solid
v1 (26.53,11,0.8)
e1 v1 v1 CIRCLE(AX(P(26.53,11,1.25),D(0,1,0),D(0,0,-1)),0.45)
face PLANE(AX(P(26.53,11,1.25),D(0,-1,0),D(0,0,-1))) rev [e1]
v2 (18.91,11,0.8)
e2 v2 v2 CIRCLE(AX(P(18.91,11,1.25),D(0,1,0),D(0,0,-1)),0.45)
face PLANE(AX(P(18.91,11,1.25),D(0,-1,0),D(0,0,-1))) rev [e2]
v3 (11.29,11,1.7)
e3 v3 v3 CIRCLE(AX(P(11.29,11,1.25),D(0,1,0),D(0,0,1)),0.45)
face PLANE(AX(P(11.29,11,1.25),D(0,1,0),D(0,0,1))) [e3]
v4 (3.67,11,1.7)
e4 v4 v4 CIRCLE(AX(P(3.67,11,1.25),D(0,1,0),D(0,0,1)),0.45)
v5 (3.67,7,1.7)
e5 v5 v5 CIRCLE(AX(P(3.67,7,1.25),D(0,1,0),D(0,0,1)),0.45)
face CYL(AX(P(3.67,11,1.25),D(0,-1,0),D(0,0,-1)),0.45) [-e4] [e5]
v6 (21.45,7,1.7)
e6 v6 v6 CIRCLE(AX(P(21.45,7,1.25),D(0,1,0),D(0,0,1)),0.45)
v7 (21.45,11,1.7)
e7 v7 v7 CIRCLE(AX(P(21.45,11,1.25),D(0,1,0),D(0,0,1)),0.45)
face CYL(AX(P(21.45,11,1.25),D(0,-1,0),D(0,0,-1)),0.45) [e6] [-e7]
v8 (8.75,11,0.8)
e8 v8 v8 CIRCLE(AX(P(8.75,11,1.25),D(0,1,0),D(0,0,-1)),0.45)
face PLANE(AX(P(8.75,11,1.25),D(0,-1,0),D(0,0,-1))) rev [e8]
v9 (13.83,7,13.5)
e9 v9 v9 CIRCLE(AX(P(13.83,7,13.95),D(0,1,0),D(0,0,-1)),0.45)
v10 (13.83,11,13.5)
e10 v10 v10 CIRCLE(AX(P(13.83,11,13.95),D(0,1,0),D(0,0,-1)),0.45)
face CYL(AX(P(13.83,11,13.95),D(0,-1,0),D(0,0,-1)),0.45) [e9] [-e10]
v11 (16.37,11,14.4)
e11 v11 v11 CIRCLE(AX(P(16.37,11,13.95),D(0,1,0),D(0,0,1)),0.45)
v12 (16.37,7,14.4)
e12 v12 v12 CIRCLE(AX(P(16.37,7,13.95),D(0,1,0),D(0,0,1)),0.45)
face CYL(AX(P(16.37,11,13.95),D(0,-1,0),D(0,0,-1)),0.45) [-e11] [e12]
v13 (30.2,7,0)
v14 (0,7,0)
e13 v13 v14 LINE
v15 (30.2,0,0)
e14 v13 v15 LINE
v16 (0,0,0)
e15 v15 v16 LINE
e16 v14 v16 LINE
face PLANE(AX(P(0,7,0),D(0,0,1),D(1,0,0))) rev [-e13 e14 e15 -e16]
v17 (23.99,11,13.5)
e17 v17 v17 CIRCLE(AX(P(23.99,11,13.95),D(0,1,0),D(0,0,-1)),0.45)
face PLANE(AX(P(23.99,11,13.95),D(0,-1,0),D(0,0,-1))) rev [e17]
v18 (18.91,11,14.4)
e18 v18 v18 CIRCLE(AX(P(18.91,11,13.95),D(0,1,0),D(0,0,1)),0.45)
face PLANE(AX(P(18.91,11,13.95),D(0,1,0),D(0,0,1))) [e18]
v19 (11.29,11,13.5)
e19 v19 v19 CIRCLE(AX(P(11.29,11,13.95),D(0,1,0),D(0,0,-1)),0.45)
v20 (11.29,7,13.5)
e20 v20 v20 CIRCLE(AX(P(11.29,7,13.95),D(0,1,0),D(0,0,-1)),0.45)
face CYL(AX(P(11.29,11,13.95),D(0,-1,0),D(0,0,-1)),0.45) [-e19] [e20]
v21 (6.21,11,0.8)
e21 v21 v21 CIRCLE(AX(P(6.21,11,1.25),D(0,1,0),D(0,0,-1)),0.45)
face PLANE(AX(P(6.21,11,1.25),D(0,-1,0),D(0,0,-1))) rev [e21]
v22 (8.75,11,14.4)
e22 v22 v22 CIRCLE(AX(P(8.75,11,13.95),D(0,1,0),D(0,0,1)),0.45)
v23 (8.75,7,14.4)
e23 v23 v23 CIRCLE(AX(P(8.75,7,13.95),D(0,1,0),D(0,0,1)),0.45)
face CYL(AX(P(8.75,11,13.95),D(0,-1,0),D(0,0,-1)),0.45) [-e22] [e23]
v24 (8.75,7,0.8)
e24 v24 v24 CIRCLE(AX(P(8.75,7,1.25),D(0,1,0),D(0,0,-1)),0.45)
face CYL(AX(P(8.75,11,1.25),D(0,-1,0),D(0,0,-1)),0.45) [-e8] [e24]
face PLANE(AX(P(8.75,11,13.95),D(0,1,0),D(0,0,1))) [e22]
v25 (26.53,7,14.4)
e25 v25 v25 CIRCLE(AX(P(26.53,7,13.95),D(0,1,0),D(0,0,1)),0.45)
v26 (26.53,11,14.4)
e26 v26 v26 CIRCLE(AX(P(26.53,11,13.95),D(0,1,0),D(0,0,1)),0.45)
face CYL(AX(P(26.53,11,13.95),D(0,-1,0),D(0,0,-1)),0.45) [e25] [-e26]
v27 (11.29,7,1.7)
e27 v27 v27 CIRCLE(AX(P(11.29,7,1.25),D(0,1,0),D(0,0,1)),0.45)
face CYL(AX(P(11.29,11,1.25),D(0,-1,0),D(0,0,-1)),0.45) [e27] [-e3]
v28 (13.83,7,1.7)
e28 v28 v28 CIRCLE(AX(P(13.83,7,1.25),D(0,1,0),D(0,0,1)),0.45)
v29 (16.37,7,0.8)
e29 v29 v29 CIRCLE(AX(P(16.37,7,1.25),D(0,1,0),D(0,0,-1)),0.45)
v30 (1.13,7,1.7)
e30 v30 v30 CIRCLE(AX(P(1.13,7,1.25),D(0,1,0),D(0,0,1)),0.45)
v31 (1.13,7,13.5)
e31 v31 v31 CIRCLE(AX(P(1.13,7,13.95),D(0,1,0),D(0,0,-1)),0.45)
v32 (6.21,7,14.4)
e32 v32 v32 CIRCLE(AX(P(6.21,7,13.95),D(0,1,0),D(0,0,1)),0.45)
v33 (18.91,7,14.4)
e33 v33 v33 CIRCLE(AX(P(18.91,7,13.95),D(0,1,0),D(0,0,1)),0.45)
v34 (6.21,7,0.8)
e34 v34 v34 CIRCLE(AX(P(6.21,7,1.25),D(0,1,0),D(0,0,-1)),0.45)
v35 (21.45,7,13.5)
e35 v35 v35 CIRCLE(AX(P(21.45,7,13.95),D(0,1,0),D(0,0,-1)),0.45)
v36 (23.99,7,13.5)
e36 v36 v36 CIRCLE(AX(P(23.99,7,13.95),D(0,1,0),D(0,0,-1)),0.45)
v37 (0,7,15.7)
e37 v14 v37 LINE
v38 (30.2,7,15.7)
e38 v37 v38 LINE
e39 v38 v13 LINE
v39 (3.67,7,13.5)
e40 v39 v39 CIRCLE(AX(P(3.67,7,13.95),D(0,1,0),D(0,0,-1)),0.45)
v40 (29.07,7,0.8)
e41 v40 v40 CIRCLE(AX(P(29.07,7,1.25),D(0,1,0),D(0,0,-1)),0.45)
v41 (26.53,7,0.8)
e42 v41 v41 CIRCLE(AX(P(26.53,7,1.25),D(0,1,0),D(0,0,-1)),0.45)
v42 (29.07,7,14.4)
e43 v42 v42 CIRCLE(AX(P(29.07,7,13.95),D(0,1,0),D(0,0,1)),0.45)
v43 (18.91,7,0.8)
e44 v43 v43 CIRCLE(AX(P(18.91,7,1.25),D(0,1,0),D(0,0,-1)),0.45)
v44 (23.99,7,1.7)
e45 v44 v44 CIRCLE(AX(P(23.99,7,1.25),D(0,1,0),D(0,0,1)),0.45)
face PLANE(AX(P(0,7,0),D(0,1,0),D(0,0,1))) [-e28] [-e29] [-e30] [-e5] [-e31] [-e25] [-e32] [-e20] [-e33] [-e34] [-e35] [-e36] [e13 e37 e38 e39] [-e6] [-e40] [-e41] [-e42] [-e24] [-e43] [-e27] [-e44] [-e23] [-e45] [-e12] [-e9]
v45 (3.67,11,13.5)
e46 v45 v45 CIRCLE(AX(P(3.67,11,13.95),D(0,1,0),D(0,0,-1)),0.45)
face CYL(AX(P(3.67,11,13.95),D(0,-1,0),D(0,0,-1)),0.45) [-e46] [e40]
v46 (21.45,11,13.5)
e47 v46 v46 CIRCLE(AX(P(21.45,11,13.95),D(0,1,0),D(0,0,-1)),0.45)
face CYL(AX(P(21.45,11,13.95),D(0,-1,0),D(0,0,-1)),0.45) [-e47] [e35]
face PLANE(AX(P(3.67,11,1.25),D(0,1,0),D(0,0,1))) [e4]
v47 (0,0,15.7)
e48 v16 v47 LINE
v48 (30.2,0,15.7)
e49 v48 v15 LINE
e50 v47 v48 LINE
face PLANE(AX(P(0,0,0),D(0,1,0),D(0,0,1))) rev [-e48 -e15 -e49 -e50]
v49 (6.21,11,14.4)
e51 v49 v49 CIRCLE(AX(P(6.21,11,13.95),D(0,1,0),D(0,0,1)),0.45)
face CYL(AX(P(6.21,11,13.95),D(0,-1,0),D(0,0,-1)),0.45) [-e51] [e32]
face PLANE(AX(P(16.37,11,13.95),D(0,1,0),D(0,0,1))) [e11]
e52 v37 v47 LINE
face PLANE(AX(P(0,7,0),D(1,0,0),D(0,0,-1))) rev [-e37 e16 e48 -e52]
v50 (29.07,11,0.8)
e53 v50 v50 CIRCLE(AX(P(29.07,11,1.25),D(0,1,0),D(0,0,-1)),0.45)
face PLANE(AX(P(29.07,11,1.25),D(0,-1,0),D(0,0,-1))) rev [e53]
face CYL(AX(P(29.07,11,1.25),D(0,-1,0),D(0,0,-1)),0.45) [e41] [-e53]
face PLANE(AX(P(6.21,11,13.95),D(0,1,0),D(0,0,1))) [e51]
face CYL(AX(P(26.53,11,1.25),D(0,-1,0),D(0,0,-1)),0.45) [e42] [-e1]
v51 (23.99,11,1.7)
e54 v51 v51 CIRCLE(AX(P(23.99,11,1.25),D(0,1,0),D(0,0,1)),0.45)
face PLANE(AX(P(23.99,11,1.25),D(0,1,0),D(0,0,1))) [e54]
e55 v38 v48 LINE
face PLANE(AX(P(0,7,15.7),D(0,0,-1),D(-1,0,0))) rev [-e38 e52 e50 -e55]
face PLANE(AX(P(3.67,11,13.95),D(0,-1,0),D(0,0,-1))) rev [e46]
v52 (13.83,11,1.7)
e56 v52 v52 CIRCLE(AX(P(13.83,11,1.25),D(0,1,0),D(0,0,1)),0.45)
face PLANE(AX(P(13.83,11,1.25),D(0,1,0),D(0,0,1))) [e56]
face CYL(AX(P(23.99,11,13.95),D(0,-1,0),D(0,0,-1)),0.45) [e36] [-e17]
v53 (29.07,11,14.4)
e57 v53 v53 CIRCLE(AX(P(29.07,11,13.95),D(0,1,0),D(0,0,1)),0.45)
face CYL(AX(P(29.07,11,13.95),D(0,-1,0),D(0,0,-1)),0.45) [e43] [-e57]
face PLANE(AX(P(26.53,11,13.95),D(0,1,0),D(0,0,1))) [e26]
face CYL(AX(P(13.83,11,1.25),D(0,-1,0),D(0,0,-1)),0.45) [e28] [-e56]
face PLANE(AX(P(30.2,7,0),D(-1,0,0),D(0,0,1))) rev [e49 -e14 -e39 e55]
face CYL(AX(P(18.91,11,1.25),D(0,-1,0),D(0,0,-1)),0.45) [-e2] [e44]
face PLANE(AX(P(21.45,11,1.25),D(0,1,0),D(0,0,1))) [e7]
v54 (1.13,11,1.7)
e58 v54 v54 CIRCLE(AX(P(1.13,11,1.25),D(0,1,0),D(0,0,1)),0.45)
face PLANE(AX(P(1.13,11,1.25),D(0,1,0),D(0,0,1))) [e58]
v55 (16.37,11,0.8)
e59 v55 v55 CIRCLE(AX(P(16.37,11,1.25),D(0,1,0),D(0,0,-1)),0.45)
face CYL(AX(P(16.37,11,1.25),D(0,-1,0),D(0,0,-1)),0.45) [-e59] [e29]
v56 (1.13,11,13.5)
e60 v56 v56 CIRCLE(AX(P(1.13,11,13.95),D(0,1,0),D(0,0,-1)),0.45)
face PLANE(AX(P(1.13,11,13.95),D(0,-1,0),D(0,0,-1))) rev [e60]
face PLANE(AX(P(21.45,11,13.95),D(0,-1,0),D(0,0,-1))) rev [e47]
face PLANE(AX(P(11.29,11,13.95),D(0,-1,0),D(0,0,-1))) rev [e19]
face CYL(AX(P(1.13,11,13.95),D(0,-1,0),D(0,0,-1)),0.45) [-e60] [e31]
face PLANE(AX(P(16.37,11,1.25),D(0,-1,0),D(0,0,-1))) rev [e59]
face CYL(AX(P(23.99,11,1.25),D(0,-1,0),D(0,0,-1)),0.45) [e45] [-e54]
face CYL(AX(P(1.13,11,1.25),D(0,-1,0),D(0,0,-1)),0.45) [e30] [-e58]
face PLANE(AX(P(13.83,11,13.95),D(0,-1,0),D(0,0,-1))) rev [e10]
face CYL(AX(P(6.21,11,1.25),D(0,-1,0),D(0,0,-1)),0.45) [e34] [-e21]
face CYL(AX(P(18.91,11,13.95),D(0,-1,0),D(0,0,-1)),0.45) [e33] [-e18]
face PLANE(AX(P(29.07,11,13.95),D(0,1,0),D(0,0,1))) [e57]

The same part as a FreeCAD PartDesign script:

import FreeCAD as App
import Part
import Sketcher
Q = App.Units.Quantity


def add_polygon(sketch, points):
    """Adds a closed chain of lines whose ends are joined by coincident constraints."""
    first, n = sketch.GeometryCount, len(points)
    for a, b in zip(points, points[1:] + points[:1]):
        sketch.addGeometry(Part.LineSegment(App.Vector(*a, 0), App.Vector(*b, 0)), False)
    for i in range(n):
        sketch.addConstraint(Sketcher.Constraint("Coincident", first + i, 2, first + (i + 1) % n, 1))

doc = App.newDocument("Part")
body = doc.addObject("PartDesign::Body", "Body")

sketch1 = body.newObject("Sketcher::SketchObject", "Sketch")
sketch1.AttachmentSupport = (doc.getObject("XZ_Plane"), [""])
sketch1.MapMode = "FlatFace"
add_polygon(sketch1, [(0, 0), (0, 15.7), (30.2, 15.7), (30.2, 0)])
sketch1.addConstraint(Sketcher.Constraint("Vertical", 0))
sketch1.addConstraint(Sketcher.Constraint("Horizontal", 1))
sketch1.addConstraint(Sketcher.Constraint("Vertical", 2))
sketch1.addConstraint(Sketcher.Constraint("Horizontal", 3))
sketch1.addConstraint(Sketcher.Constraint("Coincident", 3, 2, -1, 1))
sketch1.addConstraint(Sketcher.Constraint("DistanceX", 1, 1, 1, 2, Q("30.2 mm")))
sketch1.addConstraint(Sketcher.Constraint("DistanceY", 0, 1, 0, 2, Q("15.7 mm")))
pad1 = body.newObject("PartDesign::Pad", "Pad")
pad1.Profile = sketch1
pad1.Length = 7
pad1.Reversed = True

sketch2 = body.newObject("Sketcher::SketchObject", "Sketch001")
sketch2.AttachmentSupport = (doc.getObject("XZ_Plane"), [""])
sketch2.MapMode = "FlatFace"
sketch2.AttachmentOffset = App.Placement(App.Vector(0, 0, -7), App.Rotation())
sketch2.addGeometry(Part.Circle(App.Vector(1.13, 1.25, 0), App.Vector(0, 0, 1), 0.45), False)
sketch2.addGeometry(Part.Circle(App.Vector(3.67, 1.25, 0), App.Vector(0, 0, 1), 0.45), False)
sketch2.addGeometry(Part.Circle(App.Vector(6.21, 1.25, 0), App.Vector(0, 0, 1), 0.45), False)
sketch2.addGeometry(Part.Circle(App.Vector(8.75, 1.25, 0), App.Vector(0, 0, 1), 0.45), False)
sketch2.addGeometry(Part.Circle(App.Vector(11.29, 1.25, 0), App.Vector(0, 0, 1), 0.45), False)
sketch2.addGeometry(Part.Circle(App.Vector(13.83, 1.25, 0), App.Vector(0, 0, 1), 0.45), False)
sketch2.addGeometry(Part.Circle(App.Vector(16.37, 1.25, 0), App.Vector(0, 0, 1), 0.45), False)
sketch2.addGeometry(Part.Circle(App.Vector(18.91, 1.25, 0), App.Vector(0, 0, 1), 0.45), False)
sketch2.addGeometry(Part.Circle(App.Vector(21.45, 1.25, 0), App.Vector(0, 0, 1), 0.45), False)
sketch2.addGeometry(Part.Circle(App.Vector(23.99, 1.25, 0), App.Vector(0, 0, 1), 0.45), False)
sketch2.addGeometry(Part.Circle(App.Vector(26.53, 1.25, 0), App.Vector(0, 0, 1), 0.45), False)
sketch2.addGeometry(Part.Circle(App.Vector(29.07, 1.25, 0), App.Vector(0, 0, 1), 0.45), False)
sketch2.addGeometry(Part.Circle(App.Vector(29.07, 13.95, 0), App.Vector(0, 0, 1), 0.45), False)
sketch2.addGeometry(Part.Circle(App.Vector(26.53, 13.95, 0), App.Vector(0, 0, 1), 0.45), False)
sketch2.addGeometry(Part.Circle(App.Vector(23.99, 13.95, 0), App.Vector(0, 0, 1), 0.45), False)
sketch2.addGeometry(Part.Circle(App.Vector(21.45, 13.95, 0), App.Vector(0, 0, 1), 0.45), False)
sketch2.addGeometry(Part.Circle(App.Vector(18.91, 13.95, 0), App.Vector(0, 0, 1), 0.45), False)
sketch2.addGeometry(Part.Circle(App.Vector(16.37, 13.95, 0), App.Vector(0, 0, 1), 0.45), False)
sketch2.addGeometry(Part.Circle(App.Vector(13.83, 13.95, 0), App.Vector(0, 0, 1), 0.45), False)
sketch2.addGeometry(Part.Circle(App.Vector(11.29, 13.95, 0), App.Vector(0, 0, 1), 0.45), False)
sketch2.addGeometry(Part.Circle(App.Vector(8.75, 13.95, 0), App.Vector(0, 0, 1), 0.45), False)
sketch2.addGeometry(Part.Circle(App.Vector(6.21, 13.95, 0), App.Vector(0, 0, 1), 0.45), False)
sketch2.addGeometry(Part.Circle(App.Vector(3.67, 13.95, 0), App.Vector(0, 0, 1), 0.45), False)
sketch2.addGeometry(Part.Circle(App.Vector(1.13, 13.95, 0), App.Vector(0, 0, 1), 0.45), False)
sketch2.addConstraint(Sketcher.Constraint("Equal", 0, 1))
sketch2.addConstraint(Sketcher.Constraint("Equal", 1, 2))
sketch2.addConstraint(Sketcher.Constraint("Equal", 2, 3))
sketch2.addConstraint(Sketcher.Constraint("Equal", 3, 4))
sketch2.addConstraint(Sketcher.Constraint("Equal", 4, 5))
sketch2.addConstraint(Sketcher.Constraint("Equal", 5, 6))
sketch2.addConstraint(Sketcher.Constraint("Equal", 6, 7))
sketch2.addConstraint(Sketcher.Constraint("Equal", 7, 8))
sketch2.addConstraint(Sketcher.Constraint("Equal", 8, 9))
sketch2.addConstraint(Sketcher.Constraint("Equal", 9, 10))
sketch2.addConstraint(Sketcher.Constraint("Equal", 10, 11))
sketch2.addConstraint(Sketcher.Constraint("Equal", 11, 12))
sketch2.addConstraint(Sketcher.Constraint("Equal", 12, 13))
sketch2.addConstraint(Sketcher.Constraint("Equal", 13, 14))
sketch2.addConstraint(Sketcher.Constraint("Equal", 14, 15))
sketch2.addConstraint(Sketcher.Constraint("Equal", 15, 16))
sketch2.addConstraint(Sketcher.Constraint("Equal", 16, 17))
sketch2.addConstraint(Sketcher.Constraint("Equal", 17, 18))
sketch2.addConstraint(Sketcher.Constraint("Equal", 18, 19))
sketch2.addConstraint(Sketcher.Constraint("Equal", 19, 20))
sketch2.addConstraint(Sketcher.Constraint("Equal", 20, 21))
sketch2.addConstraint(Sketcher.Constraint("Equal", 21, 22))
sketch2.addConstraint(Sketcher.Constraint("Equal", 22, 23))
sketch2.addConstraint(Sketcher.Constraint("Horizontal", 0, 3, 1, 3))
sketch2.addConstraint(Sketcher.Constraint("Horizontal", 1, 3, 2, 3))
sketch2.addConstraint(Sketcher.Constraint("Horizontal", 2, 3, 3, 3))
sketch2.addConstraint(Sketcher.Constraint("Horizontal", 3, 3, 4, 3))
sketch2.addConstraint(Sketcher.Constraint("Horizontal", 4, 3, 5, 3))
sketch2.addConstraint(Sketcher.Constraint("Horizontal", 5, 3, 6, 3))
sketch2.addConstraint(Sketcher.Constraint("Horizontal", 6, 3, 7, 3))
sketch2.addConstraint(Sketcher.Constraint("Horizontal", 7, 3, 8, 3))
sketch2.addConstraint(Sketcher.Constraint("Horizontal", 8, 3, 9, 3))
sketch2.addConstraint(Sketcher.Constraint("Horizontal", 9, 3, 10, 3))
sketch2.addConstraint(Sketcher.Constraint("Horizontal", 10, 3, 11, 3))
sketch2.addConstraint(Sketcher.Constraint("Horizontal", 12, 3, 13, 3))
sketch2.addConstraint(Sketcher.Constraint("Horizontal", 13, 3, 14, 3))
sketch2.addConstraint(Sketcher.Constraint("Horizontal", 14, 3, 15, 3))
sketch2.addConstraint(Sketcher.Constraint("Horizontal", 15, 3, 16, 3))
sketch2.addConstraint(Sketcher.Constraint("Horizontal", 16, 3, 17, 3))
sketch2.addConstraint(Sketcher.Constraint("Horizontal", 17, 3, 18, 3))
sketch2.addConstraint(Sketcher.Constraint("Horizontal", 18, 3, 19, 3))
sketch2.addConstraint(Sketcher.Constraint("Horizontal", 19, 3, 20, 3))
sketch2.addConstraint(Sketcher.Constraint("Horizontal", 20, 3, 21, 3))
sketch2.addConstraint(Sketcher.Constraint("Horizontal", 21, 3, 22, 3))
sketch2.addConstraint(Sketcher.Constraint("Horizontal", 22, 3, 23, 3))
sketch2.addConstraint(Sketcher.Constraint("Vertical", 11, 3, 12, 3))
sketch2.addConstraint(Sketcher.Constraint("Vertical", 10, 3, 13, 3))
sketch2.addConstraint(Sketcher.Constraint("Vertical", 9, 3, 14, 3))
sketch2.addConstraint(Sketcher.Constraint("Vertical", 8, 3, 15, 3))
sketch2.addConstraint(Sketcher.Constraint("Vertical", 7, 3, 16, 3))
sketch2.addConstraint(Sketcher.Constraint("Vertical", 6, 3, 17, 3))
sketch2.addConstraint(Sketcher.Constraint("Vertical", 5, 3, 18, 3))
sketch2.addConstraint(Sketcher.Constraint("Vertical", 4, 3, 19, 3))
sketch2.addConstraint(Sketcher.Constraint("Vertical", 3, 3, 20, 3))
sketch2.addConstraint(Sketcher.Constraint("Vertical", 2, 3, 21, 3))
sketch2.addConstraint(Sketcher.Constraint("Vertical", 1, 3, 22, 3))
sketch2.addConstraint(Sketcher.Constraint("Vertical", 0, 3, 23, 3))
sketch2.addConstraint(Sketcher.Constraint("Diameter", 0, Q("0.9 mm")))
sketch2.addConstraint(Sketcher.Constraint("DistanceX", 0, 3, 5, 3, Q("12.7 mm")))
sketch2.addConstraint(Sketcher.Constraint("DistanceX", 1, 3, 6, 3, Q("12.7 mm")))
sketch2.addConstraint(Sketcher.Constraint("DistanceX", 2, 3, 7, 3, Q("12.7 mm")))
sketch2.addConstraint(Sketcher.Constraint("DistanceX", 3, 3, 8, 3, Q("12.7 mm")))
sketch2.addConstraint(Sketcher.Constraint("DistanceX", 4, 3, 9, 3, Q("12.7 mm")))
sketch2.addConstraint(Sketcher.Constraint("DistanceX", 5, 3, 10, 3, Q("12.7 mm")))
sketch2.addConstraint(Sketcher.Constraint("DistanceX", 6, 3, 11, 3, Q("12.7 mm")))
sketch2.addConstraint(Sketcher.Constraint("DistanceY", 11, 3, 12, 3, Q("12.7 mm")))
sketch2.addConstraint(Sketcher.Constraint("DistanceX", -1, 1, 0, 3, Q("1.13 mm")))
sketch2.addConstraint(Sketcher.Constraint("DistanceY", -1, 1, 0, 3, Q("1.25 mm")))
sketch2.addConstraint(Sketcher.Constraint("DistanceX", -1, 1, 1, 3, Q("3.67 mm")))
sketch2.addConstraint(Sketcher.Constraint("DistanceX", -1, 1, 2, 3, Q("6.21 mm")))
sketch2.addConstraint(Sketcher.Constraint("DistanceX", -1, 1, 3, 3, Q("8.75 mm")))
sketch2.addConstraint(Sketcher.Constraint("DistanceX", -1, 1, 4, 3, Q("11.29 mm")))
pad2 = body.newObject("PartDesign::Pad", "Pad001")
pad2.Profile = sketch2
pad2.Length = 4
pad2.Reversed = True

doc.recompute()
